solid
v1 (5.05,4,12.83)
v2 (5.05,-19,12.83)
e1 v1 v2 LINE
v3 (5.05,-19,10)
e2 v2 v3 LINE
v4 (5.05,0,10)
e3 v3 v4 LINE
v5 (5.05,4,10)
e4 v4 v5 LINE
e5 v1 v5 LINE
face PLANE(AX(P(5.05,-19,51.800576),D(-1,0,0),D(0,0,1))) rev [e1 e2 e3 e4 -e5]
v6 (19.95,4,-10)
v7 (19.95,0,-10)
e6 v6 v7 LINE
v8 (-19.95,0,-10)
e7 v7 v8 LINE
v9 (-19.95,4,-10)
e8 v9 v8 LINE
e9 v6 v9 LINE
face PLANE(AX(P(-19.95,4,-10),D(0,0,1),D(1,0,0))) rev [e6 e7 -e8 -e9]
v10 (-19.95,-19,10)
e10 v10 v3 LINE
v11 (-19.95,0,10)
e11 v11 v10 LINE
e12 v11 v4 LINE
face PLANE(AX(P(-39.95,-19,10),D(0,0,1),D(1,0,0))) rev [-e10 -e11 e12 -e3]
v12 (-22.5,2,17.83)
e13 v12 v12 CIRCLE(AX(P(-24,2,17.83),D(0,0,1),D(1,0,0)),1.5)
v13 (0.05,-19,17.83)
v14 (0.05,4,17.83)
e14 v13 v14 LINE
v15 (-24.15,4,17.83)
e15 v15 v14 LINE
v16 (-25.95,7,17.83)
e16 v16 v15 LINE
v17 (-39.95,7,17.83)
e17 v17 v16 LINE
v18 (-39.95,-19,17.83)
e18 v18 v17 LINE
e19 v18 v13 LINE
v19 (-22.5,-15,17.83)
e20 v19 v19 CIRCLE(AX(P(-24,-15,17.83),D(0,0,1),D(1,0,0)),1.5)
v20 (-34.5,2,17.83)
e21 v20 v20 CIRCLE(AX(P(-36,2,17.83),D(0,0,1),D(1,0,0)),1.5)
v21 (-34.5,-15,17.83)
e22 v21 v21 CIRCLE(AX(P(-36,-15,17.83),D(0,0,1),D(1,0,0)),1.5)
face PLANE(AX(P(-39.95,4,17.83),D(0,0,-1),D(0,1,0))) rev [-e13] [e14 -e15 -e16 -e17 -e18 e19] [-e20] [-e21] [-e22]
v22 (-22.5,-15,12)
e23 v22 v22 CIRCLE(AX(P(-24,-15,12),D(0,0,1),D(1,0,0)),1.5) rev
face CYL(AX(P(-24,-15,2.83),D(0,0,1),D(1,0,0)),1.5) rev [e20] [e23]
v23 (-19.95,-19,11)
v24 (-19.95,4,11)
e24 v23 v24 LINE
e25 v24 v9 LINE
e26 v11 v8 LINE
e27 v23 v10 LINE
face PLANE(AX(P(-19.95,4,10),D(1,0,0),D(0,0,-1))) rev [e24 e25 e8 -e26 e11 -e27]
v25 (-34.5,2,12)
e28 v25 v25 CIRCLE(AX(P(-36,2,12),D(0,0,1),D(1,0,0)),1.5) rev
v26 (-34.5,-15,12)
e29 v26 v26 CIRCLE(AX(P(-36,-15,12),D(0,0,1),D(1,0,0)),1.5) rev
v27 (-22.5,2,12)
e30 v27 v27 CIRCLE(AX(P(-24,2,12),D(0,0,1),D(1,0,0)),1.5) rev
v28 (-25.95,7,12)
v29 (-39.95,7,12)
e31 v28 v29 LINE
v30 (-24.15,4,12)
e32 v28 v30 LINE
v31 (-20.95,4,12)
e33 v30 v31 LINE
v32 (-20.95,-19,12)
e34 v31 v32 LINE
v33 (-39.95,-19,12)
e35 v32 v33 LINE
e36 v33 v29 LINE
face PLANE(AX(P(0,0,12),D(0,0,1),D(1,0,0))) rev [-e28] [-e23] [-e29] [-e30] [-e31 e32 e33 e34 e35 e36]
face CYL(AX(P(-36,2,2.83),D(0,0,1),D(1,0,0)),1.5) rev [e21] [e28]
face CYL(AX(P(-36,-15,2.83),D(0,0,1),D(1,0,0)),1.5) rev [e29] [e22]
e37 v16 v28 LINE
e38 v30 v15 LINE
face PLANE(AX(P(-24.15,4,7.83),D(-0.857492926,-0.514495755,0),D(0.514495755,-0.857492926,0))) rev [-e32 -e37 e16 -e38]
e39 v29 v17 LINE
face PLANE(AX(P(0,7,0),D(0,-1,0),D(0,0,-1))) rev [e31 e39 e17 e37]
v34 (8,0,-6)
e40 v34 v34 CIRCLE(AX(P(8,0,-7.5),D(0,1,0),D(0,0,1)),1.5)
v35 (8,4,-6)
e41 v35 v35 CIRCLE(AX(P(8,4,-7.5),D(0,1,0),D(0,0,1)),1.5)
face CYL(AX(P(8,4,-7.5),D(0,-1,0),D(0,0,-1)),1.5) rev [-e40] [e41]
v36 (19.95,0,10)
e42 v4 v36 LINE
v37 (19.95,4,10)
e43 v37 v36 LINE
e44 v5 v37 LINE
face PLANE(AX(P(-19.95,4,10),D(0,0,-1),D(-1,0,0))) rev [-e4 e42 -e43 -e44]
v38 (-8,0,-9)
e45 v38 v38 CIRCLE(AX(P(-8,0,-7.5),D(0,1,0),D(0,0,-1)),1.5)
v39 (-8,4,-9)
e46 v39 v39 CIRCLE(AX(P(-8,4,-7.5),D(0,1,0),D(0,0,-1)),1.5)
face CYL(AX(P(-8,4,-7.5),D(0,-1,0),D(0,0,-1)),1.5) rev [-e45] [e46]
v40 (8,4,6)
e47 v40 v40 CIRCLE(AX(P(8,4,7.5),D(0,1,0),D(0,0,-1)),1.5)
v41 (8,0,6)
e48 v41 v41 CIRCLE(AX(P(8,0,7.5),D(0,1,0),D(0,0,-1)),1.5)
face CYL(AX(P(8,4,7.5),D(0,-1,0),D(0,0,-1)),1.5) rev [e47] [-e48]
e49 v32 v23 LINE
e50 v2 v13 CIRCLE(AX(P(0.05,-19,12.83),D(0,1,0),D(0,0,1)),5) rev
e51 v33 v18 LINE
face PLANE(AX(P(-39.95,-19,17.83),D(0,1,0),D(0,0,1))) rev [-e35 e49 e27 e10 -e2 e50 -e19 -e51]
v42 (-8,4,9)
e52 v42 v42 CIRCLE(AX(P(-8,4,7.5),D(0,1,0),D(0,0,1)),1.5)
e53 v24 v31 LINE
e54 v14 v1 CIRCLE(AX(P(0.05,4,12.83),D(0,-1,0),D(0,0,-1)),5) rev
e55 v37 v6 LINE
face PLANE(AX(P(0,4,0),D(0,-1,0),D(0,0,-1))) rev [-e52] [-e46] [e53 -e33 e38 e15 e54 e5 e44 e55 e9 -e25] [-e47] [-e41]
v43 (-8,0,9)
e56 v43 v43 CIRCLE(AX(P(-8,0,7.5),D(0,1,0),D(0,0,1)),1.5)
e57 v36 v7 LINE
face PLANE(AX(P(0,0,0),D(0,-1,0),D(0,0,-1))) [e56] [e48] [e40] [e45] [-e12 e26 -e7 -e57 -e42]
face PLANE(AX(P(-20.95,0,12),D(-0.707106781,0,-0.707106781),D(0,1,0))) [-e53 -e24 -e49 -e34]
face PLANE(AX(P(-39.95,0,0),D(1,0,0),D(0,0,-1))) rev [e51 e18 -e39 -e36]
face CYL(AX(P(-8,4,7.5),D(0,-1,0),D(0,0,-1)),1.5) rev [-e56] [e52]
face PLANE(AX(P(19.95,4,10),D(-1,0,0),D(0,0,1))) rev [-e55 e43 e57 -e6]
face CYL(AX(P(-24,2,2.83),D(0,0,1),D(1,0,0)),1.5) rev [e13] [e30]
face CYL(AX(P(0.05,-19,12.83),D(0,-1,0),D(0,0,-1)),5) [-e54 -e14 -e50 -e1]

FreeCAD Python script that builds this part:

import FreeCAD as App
import Part
import Sketcher
from FreeCAD import Vector


def edges_at(feature, points):
    """Names of the edges that pass closest to the given points."""
    edges = feature.Shape.Edges
    near = lambda p: min(range(len(edges)), key=lambda i: edges[i].distToShape(Part.Vertex(*p))[0])
    return sorted({f"Edge{near(p) + 1}" for p in points})


def add_polygon(sketch, points):
    """Adds a closed chain of lines whose ends are joined by coincident constraints."""
    first, n = sketch.GeometryCount, len(points)
    for a, b in zip(points, points[1:] + points[:1]):
        sketch.addGeometry(Part.LineSegment(App.Vector(*a, 0), App.Vector(*b, 0)), False)
    for i in range(n):
        sketch.addConstraint(Sketcher.Constraint("Coincident", first + i, 2, first + (i + 1) % n, 1))

doc = App.newDocument("Part")
body = doc.addObject("PartDesign::Body", "Body")

sketch1 = body.newObject("Sketcher::SketchObject", "Sketch")
sketch1.AttachmentSupport = (doc.getObject("XZ_Plane"), [""])
sketch1.MapMode = "FlatFace"
add_polygon(sketch1, [(-19.9, -10), (-19.9, 10), (19.9, 10), (19.9, -10)])
sketch1.addGeometry(Part.Circle(Vector(-8, 7.5, 0), Vector(0, 0, 1), 1.5), False)
sketch1.addGeometry(Part.Circle(Vector(8, 7.5, 0), Vector(0, 0, 1), 1.5), False)
sketch1.addGeometry(Part.Circle(Vector(-8, -7.5, 0), Vector(0, 0, 1), 1.5), False)
sketch1.addGeometry(Part.Circle(Vector(8, -7.5, 0), Vector(0, 0, 1), 1.5), False)
sketch1.addConstraint(Sketcher.Constraint("Vertical", 0))
sketch1.addConstraint(Sketcher.Constraint("Horizontal", 1))
sketch1.addConstraint(Sketcher.Constraint("Vertical", 2))
sketch1.addConstraint(Sketcher.Constraint("Horizontal", 3))
sketch1.addConstraint(Sketcher.Constraint("Equal", 4, 5))
sketch1.addConstraint(Sketcher.Constraint("Equal", 5, 6))
sketch1.addConstraint(Sketcher.Constraint("Equal", 6, 7))
sketch1.addConstraint(Sketcher.Constraint("Symmetric", 5, 3, 6, 3, -1, 1))
sketch1.addConstraint(Sketcher.Constraint("Symmetric", 4, 3, 7, 3, -1, 1))
sketch1.addConstraint(Sketcher.Constraint("Symmetric", 0, 2, 2, 2, -1, 1))
sketch1.addConstraint(Sketcher.Constraint("Symmetric", 4, 3, 5, 3, -2))
sketch1.addConstraint(Sketcher.Constraint("Diameter", 4, 3.0))
sketch1.addConstraint(Sketcher.Constraint("DistanceY", 0, 1, 0, 2, 20.0))
sketch1.addConstraint(Sketcher.Constraint("DistanceX", 1, 1, 1, 2, 39.9))
sketch1.addConstraint(Sketcher.Constraint("DistanceX", 4, 3, -1, 1, 8.0))
sketch1.addConstraint(Sketcher.Constraint("DistanceY", 6, 3, 4, 3, 15.0))
pad1 = body.newObject("PartDesign::Pad", "Pad")
pad1.Profile = sketch1
pad1.Length = 4
pad1.Reversed = True

sketch2 = body.newObject("Sketcher::SketchObject", "Sketch001")
sketch2.AttachmentSupport = (doc.getObject("YZ_Plane"), [""])
sketch2.MapMode = "FlatFace"
sketch2.AttachmentOffset = App.Placement(Vector(0, 0, -19.95), App.Rotation())
add_polygon(sketch2, [(4, 17.8), (4, -10), (0, -10), (0, 10), (-19, 10), (-19, 17.8)])
sketch2.addConstraint(Sketcher.Constraint("Vertical", 0))
sketch2.addConstraint(Sketcher.Constraint("Horizontal", 1))
sketch2.addConstraint(Sketcher.Constraint("Vertical", 2))
sketch2.addConstraint(Sketcher.Constraint("Horizontal", 3))
sketch2.addConstraint(Sketcher.Constraint("Vertical", 4))
sketch2.addConstraint(Sketcher.Constraint("Horizontal", 5))
sketch2.addConstraint(Sketcher.Constraint("Symmetric", 1, 2, 2, 2, -1, 1))
sketch2.addConstraint(Sketcher.Constraint("DistanceX", 1, 2, 1, 1, 4.0))
sketch2.addConstraint(Sketcher.Constraint("DistanceX", 3, 2, 3, 1, 19.0))
sketch2.addConstraint(Sketcher.Constraint("DistanceY", 2, 1, 2, 2, 20.0))
sketch2.addConstraint(Sketcher.Constraint("DistanceY", 0, 2, 0, 1, 27.83))
pad2 = body.newObject("PartDesign::Pad", "Pad001")
pad2.Profile = sketch2
pad2.Length = 20
pad2.Reversed = True

sketch3 = body.newObject("Sketcher::SketchObject", "Sketch002")
sketch3.AttachmentSupport = (doc.getObject("XY_Plane"), [""])
sketch3.MapMode = "FlatFace"
sketch3.AttachmentOffset = App.Placement(Vector(0, 0, 17.83), App.Rotation())
sketch3.addGeometry(Part.Circle(Vector(-36, 2, 0), Vector(0, 0, 1), 1.5), False)
sketch3.addGeometry(Part.Circle(Vector(-24, 2, 0), Vector(0, 0, 1), 1.5), False)
sketch3.addGeometry(Part.Circle(Vector(-36, -15, 0), Vector(0, 0, 1), 1.5), False)
sketch3.addGeometry(Part.Circle(Vector(-24, -15, 0), Vector(0, 0, 1), 1.5), False)
sketch3.addConstraint(Sketcher.Constraint("Equal", 0, 1))
sketch3.addConstraint(Sketcher.Constraint("Equal", 1, 2))
sketch3.addConstraint(Sketcher.Constraint("Equal", 2, 3))
sketch3.addConstraint(Sketcher.Constraint("Horizontal", 0, 3, 1, 3))
sketch3.addConstraint(Sketcher.Constraint("Horizontal", 2, 3, 3, 3))
sketch3.addConstraint(Sketcher.Constraint("Vertical", 0, 3, 2, 3))
sketch3.addConstraint(Sketcher.Constraint("Vertical", 1, 3, 3, 3))
sketch3.addConstraint(Sketcher.Constraint("Diameter", 0, 3.0))
sketch3.addConstraint(Sketcher.Constraint("DistanceX", 0, 3, -1, 1, 36.0))
sketch3.addConstraint(Sketcher.Constraint("DistanceY", -1, 1, 0, 3, 2.0))
sketch3.addConstraint(Sketcher.Constraint("DistanceX", 1, 3, -1, 1, 24.0))
sketch3.addConstraint(Sketcher.Constraint("DistanceY", 2, 3, -1, 1, 15.0))
pocket1 = body.newObject("PartDesign::Pocket", "Pocket")
pocket1.Profile = sketch3
pocket1.Length = 15

sketch4 = body.newObject("Sketcher::SketchObject", "Sketch003")
sketch4.AttachmentSupport = (doc.getObject("XY_Plane"), [""])
sketch4.MapMode = "FlatFace"
sketch4.AttachmentOffset = App.Placement(Vector(0, 0, 10), App.Rotation())
add_polygon(sketch4, [(-20, 4), (-20, -19), (5, -19), (5, 4)])
sketch4.addConstraint(Sketcher.Constraint("Vertical", 0))
sketch4.addConstraint(Sketcher.Constraint("Horizontal", 1))
sketch4.addConstraint(Sketcher.Constraint("Vertical", 2))
sketch4.addConstraint(Sketcher.Constraint("Horizontal", 3))
sketch4.addConstraint(Sketcher.Constraint("DistanceX", 1, 1, 1, 2, 25.0))
sketch4.addConstraint(Sketcher.Constraint("DistanceY", 0, 2, 0, 1, 23.0))
sketch4.addConstraint(Sketcher.Constraint("DistanceY", 0, 2, -1, 1, 19.0))
sketch4.addConstraint(Sketcher.Constraint("DistanceX", 0, 2, -1, 1, 19.95))
pad3 = body.newObject("PartDesign::Pad", "Pad002")
pad3.Profile = sketch4
pad3.Length = 7.83

sketch5 = body.newObject("Sketcher::SketchObject", "Sketch004")
sketch5.AttachmentSupport = (doc.getObject("XY_Plane"), [""])
sketch5.MapMode = "FlatFace"
sketch5.AttachmentOffset = App.Placement(Vector(0, 0, -10), App.Rotation())
add_polygon(sketch5, [(-19.9, 4), (-19.9, 0), (-40, 0), (-40, 4)])
sketch5.addConstraint(Sketcher.Constraint("Vertical", 0))
sketch5.addConstraint(Sketcher.Constraint("Horizontal", 1))
sketch5.addConstraint(Sketcher.Constraint("Vertical", 2))
sketch5.addConstraint(Sketcher.Constraint("Horizontal", 3))
sketch5.addConstraint(Sketcher.Constraint("PointOnObject", 0, 2, -1))
sketch5.addConstraint(Sketcher.Constraint("DistanceX", 1, 2, 1, 1, 20.0))
sketch5.addConstraint(Sketcher.Constraint("DistanceY", 0, 2, 0, 1, 4.0))
sketch5.addConstraint(Sketcher.Constraint("DistanceX", 0, 2, -1, 1, 19.95))
pocket2 = body.newObject("PartDesign::Pocket", "Pocket001")
pocket2.Profile = sketch5
pocket2.Length = 20
pocket2.Reversed = True
doc.recompute()

fillet = body.newObject("PartDesign::Fillet", "Fillet")
fillet.Base = (pocket2, edges_at(pocket2, [(5.05, -7.5, 17.83)]))
fillet.Radius = 5

sketch6 = body.newObject("Sketcher::SketchObject", "Sketch005")
sketch6.AttachmentSupport = (doc.getObject("XY_Plane"), [""])
sketch6.MapMode = "FlatFace"
sketch6.AttachmentOffset = App.Placement(Vector(0, 0, 10), App.Rotation())
add_polygon(sketch6, [(-20, 4), (-20, -19), (-40, -19), (-40, 4)])
sketch6.addConstraint(Sketcher.Constraint("Vertical", 0))
sketch6.addConstraint(Sketcher.Constraint("Horizontal", 1))
sketch6.addConstraint(Sketcher.Constraint("Vertical", 2))
sketch6.addConstraint(Sketcher.Constraint("Horizontal", 3))
sketch6.addConstraint(Sketcher.Constraint("DistanceX", 1, 2, 1, 1, 20.0))
sketch6.addConstraint(Sketcher.Constraint("DistanceY", 0, 2, 0, 1, 23.0))
sketch6.addConstraint(Sketcher.Constraint("DistanceY", 0, 2, -1, 1, 19.0))
sketch6.addConstraint(Sketcher.Constraint("DistanceX", 0, 2, -1, 1, 19.95))
pocket3 = body.newObject("PartDesign::Pocket", "Pocket002")
pocket3.Profile = sketch6
pocket3.Length = 2
pocket3.Reversed = True

sketch7 = body.newObject("Sketcher::SketchObject", "Sketch006")
sketch7.AttachmentSupport = (doc.getObject("XZ_Plane"), [""])
sketch7.MapMode = "FlatFace"
sketch7.AttachmentOffset = App.Placement(Vector(0, 0, -4), App.Rotation())
add_polygon(sketch7, [(-40, 12), (-40, 18), (-20, 18), (-20, 12)])
sketch7.addConstraint(Sketcher.Constraint("Vertical", 0))
sketch7.addConstraint(Sketcher.Constraint("Horizontal", 1))
sketch7.addConstraint(Sketcher.Constraint("Vertical", 2))
sketch7.addConstraint(Sketcher.Constraint("Horizontal", 3))
sketch7.addConstraint(Sketcher.Constraint("DistanceX", 1, 1, 1, 2, 20.0))
sketch7.addConstraint(Sketcher.Constraint("DistanceY", -1, 1, 2, 2, 12.0))
sketch7.addConstraint(Sketcher.Constraint("DistanceY", 0, 1, 0, 2, 5.83))
sketch7.addConstraint(Sketcher.Constraint("DistanceX", 0, 2, -1, 1, 39.95))
pad4 = body.newObject("PartDesign::Pad", "Pad003")
pad4.Profile = sketch7
pad4.Length = 3
pad4.Reversed = True
doc.recompute()

chamfer = body.newObject("PartDesign::Chamfer", "Chamfer")
chamfer.Base = (pad4, edges_at(pad4, [(-19.95, -7.5, 12)]))
chamfer.Size = 1

sketch8 = body.newObject("Sketcher::SketchObject", "Sketch007")
sketch8.AttachmentSupport = (doc.getObject("XY_Plane"), [""])
sketch8.MapMode = "FlatFace"
sketch8.AttachmentOffset = App.Placement(Vector(0, 0, 17.83), App.Rotation())
add_polygon(sketch8, [(-24.1, 4), (-19.9, 4), (-19.9, 7), (-25.9, 7)])
sketch8.addConstraint(Sketcher.Constraint("Horizontal", 0))
sketch8.addConstraint(Sketcher.Constraint("Vertical", 1))
sketch8.addConstraint(Sketcher.Constraint("Horizontal", 2))
sketch8.addConstraint(Sketcher.Constraint("DistanceX", 2, 2, 2, 1, 6.0))
sketch8.addConstraint(Sketcher.Constraint("DistanceY", 1, 1, 1, 2, 3.0))
sketch8.addConstraint(Sketcher.Constraint("DistanceX", 0, 1, 0, 2, 4.2))
sketch8.addConstraint(Sketcher.Constraint("DistanceY", -1, 1, 0, 2, 4.0))
sketch8.addConstraint(Sketcher.Constraint("DistanceX", 0, 2, -1, 1, 19.95))
pocket4 = body.newObject("PartDesign::Pocket", "Pocket003")
pocket4.Profile = sketch8
pocket4.Length = 10

doc.recompute()
